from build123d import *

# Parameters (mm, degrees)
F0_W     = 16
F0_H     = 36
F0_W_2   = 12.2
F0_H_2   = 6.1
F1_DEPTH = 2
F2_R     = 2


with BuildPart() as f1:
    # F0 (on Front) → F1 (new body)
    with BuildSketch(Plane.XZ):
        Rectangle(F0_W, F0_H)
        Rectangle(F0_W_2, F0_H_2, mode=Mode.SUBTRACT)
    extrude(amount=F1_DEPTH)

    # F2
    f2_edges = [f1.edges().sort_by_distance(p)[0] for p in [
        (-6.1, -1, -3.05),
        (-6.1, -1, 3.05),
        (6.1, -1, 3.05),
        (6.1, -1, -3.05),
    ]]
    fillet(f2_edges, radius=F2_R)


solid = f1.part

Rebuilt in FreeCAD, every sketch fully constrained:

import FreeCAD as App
import Part
import Sketcher

V = App.Vector
Q = App.Units.Quantity


def edges_at(feature, points):
    """Names of the edges that pass closest to the given points."""
    edges = feature.Shape.Edges
    near = lambda p: min(range(len(edges)), key=lambda i: edges[i].distToShape(Part.Vertex(*p))[0])
    return sorted({f"Edge{near(p) + 1}" for p in points})


def add_polygon(sketch, points):
    """Adds a closed chain of lines whose ends are joined by coincident constraints."""
    first, n = sketch.GeometryCount, len(points)
    for a, b in zip(points, points[1:] + points[:1]):
        sketch.addGeometry(Part.LineSegment(App.Vector(*a, 0), App.Vector(*b, 0)), False)
    for i in range(n):
        sketch.addConstraint(Sketcher.Constraint("Coincident", first + i, 2, first + (i + 1) % n, 1))

doc = App.newDocument("Part")
body = doc.addObject("PartDesign::Body", "Body")

sketch1 = body.newObject("Sketcher::SketchObject", "Sketch")
sketch1.AttachmentSupport = (doc.getObject("XZ_Plane"), [""])
sketch1.MapMode = "FlatFace"
add_polygon(sketch1, [(-8, 18), (-8, -18), (8, -18), (8, 18)])
add_polygon(sketch1, [(6, -3), (-6, -3), (-6, 3), (6, 3)])
sketch1.addConstraint([
    Sketcher.Constraint("Vertical", 0),
    Sketcher.Constraint("Horizontal", 1),
    Sketcher.Constraint("Vertical", 2),
    Sketcher.Constraint("Horizontal", 3),
    Sketcher.Constraint("Horizontal", 4),
    Sketcher.Constraint("Vertical", 5),
    Sketcher.Constraint("Horizontal", 6),
    Sketcher.Constraint("Vertical", 7),
    Sketcher.Constraint("Symmetric", 0, 2, 2, 2, -1, 1),
    Sketcher.Constraint("Symmetric", 4, 2, 6, 2, -1, 1),
    Sketcher.Constraint("DistanceX", 1, 1, 1, 2, Q("16 mm")),
    Sketcher.Constraint("DistanceY", 0, 2, 0, 1, Q("36 mm")),
    Sketcher.Constraint("DistanceX", 4, 2, 4, 1, Q("12.2 mm")),
    Sketcher.Constraint("DistanceY", 5, 1, 5, 2, Q("6.1 mm")),
])
pad1 = body.newObject("PartDesign::Pad", "Pad")
pad1.Profile = sketch1
pad1.Length = 2
doc.recompute()

fillet = body.newObject("PartDesign::Fillet", "Fillet")
fillet.Base = (pad1, edges_at(pad1, [
    (-6.1, -1, -3.05),
    (-6.1, -1, 3.05),
    (6.1, -1, 3.05),
    (6.1, -1, -3.05),
]))
fillet.Radius = 2

doc.recompute()
